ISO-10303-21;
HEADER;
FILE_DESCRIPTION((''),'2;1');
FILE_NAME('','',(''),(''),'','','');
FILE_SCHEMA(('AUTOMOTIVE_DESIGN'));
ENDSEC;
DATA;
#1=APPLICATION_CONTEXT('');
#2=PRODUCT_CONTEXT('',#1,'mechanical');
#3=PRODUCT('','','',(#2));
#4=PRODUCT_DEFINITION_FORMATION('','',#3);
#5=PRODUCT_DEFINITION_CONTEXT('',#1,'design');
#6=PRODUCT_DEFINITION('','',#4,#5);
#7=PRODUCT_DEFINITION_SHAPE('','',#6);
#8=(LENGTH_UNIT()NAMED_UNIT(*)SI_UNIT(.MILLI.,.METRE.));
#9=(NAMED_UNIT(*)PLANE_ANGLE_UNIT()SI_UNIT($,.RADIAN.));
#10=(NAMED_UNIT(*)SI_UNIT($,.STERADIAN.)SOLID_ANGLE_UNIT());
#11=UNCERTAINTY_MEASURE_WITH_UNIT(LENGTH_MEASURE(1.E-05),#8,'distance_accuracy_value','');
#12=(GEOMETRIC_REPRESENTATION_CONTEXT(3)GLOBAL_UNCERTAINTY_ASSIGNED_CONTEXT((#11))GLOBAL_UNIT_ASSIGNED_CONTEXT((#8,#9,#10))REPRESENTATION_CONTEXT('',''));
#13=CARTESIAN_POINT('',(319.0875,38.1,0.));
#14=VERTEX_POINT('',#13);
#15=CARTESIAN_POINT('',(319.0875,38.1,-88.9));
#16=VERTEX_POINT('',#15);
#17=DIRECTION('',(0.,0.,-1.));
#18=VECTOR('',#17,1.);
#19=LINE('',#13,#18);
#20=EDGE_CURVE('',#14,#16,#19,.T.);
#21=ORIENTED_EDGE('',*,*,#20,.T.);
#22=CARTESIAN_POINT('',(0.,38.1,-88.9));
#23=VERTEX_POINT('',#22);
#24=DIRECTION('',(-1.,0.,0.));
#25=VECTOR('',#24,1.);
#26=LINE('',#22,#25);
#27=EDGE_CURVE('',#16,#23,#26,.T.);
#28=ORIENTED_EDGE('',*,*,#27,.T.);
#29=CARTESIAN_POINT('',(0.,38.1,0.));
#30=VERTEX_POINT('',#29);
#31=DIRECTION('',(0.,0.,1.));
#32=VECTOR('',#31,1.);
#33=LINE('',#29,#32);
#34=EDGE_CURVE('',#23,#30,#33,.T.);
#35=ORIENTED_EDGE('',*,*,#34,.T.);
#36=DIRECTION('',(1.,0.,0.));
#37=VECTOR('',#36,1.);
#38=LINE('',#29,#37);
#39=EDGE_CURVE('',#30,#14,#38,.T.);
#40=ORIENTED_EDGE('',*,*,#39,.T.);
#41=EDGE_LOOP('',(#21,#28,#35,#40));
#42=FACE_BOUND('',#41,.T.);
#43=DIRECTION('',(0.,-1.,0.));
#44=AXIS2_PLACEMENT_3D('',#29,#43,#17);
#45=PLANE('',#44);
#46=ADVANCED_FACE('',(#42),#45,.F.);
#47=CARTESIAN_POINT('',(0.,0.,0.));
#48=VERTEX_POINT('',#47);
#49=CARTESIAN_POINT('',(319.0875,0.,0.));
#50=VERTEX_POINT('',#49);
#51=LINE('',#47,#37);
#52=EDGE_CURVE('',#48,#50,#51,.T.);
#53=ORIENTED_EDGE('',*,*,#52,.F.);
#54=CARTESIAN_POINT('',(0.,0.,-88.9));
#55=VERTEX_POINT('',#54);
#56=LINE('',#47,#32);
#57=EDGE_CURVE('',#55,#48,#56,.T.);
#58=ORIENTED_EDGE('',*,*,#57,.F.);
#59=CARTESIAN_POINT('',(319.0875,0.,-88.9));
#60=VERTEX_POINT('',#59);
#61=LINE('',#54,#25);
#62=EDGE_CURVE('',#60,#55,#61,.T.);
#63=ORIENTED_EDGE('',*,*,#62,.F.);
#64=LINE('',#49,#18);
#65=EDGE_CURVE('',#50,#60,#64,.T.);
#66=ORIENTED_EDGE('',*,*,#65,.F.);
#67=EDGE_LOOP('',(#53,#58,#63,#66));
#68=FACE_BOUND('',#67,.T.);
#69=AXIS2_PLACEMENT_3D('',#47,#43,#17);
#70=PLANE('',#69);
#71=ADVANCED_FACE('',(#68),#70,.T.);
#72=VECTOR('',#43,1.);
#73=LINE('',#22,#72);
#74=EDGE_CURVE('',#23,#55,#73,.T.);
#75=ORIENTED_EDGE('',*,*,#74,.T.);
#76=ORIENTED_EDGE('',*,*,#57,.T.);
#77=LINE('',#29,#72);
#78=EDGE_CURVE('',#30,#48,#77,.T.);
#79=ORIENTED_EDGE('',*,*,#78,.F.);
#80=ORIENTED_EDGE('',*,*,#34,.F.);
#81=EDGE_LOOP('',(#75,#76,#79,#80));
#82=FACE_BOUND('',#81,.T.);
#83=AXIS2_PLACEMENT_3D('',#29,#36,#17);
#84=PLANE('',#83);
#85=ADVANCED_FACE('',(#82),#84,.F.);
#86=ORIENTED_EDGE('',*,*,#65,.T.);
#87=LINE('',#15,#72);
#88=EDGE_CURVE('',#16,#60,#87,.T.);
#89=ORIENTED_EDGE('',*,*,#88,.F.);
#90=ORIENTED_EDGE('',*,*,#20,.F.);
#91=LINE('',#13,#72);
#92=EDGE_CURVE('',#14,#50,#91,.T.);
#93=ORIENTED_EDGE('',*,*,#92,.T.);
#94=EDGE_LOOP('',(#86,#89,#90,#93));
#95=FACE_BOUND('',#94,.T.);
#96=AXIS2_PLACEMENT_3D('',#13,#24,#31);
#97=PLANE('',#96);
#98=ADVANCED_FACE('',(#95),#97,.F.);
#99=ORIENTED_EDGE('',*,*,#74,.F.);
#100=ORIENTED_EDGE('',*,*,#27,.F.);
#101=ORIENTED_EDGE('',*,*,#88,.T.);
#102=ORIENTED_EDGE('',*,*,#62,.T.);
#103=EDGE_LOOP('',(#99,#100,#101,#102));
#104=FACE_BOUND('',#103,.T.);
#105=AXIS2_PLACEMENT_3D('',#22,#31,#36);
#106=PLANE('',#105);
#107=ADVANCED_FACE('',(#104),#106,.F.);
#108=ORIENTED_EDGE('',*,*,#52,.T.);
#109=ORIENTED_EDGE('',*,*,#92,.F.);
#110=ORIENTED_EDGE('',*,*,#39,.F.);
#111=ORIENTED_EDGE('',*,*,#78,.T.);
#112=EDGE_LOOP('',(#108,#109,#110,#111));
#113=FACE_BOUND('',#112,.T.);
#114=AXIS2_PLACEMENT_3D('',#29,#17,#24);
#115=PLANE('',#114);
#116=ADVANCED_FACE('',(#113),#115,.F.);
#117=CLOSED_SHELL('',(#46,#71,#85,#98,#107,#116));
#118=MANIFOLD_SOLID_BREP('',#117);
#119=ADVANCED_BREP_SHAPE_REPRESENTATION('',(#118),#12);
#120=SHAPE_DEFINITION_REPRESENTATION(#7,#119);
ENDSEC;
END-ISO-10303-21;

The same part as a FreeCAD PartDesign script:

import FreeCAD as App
import Part
import Sketcher

V = App.Vector
Q = App.Units.Quantity

doc = App.newDocument("Part")
params = doc.addObject("Spreadsheet::Sheet", "Params")
for row, (alias, value) in enumerate([
    ("sketch1_height", "3.5 in"),
    ("sketch1_width", "12.5625 in"),
    ("pad1_length", "1.5 in"),
], start=1):
    params.set(f"A{row}", alias)
    params.set(f"B{row}", "=" + value)
    params.setAlias(f"B{row}", alias)

body = doc.addObject("PartDesign::Body", "Body")

# Sketch on XZ plane
sketch1 = body.newObject("Sketcher::SketchObject", "Sketch")
sketch1.AttachmentSupport = (doc.getObject("XZ_Plane"), [""])
sketch1.MapMode = "FlatFace"
sketch1.addGeometry([
    Part.LineSegment(V(0, -88.9, 0), V(0, 0, 0)),
    Part.LineSegment(V(0, 0, 0), V(319.0875, 0, 0)),
    Part.LineSegment(V(319.0875, 0, 0), V(319.0875, -88.9, 0)),
    Part.LineSegment(V(319.0875, -88.9, 0), V(0, -88.9, 0)),
], False)
sketch1.addConstraint([
    Sketcher.Constraint("Coincident", 0, 2, 1, 1),
    Sketcher.Constraint("Coincident", 1, 2, 2, 1),
    Sketcher.Constraint("Coincident", 2, 2, 3, 1),
    Sketcher.Constraint("Coincident", 3, 2, 0, 1),
    Sketcher.Constraint("Vertical", 0),
    Sketcher.Constraint("Horizontal", 1),
    Sketcher.Constraint("Vertical", 2),
    Sketcher.Constraint("Horizontal", 3),
    Sketcher.Constraint("Coincident", 0, 2, -1, 1),
    Sketcher.Constraint("DistanceY", 0, 1, 0, 2, Q("3.5 in")),
    Sketcher.Constraint("DistanceX", 1, 1, 1, 2, Q("12.5625 in")),
])
sketch1.setExpression("Constraints[9]", "Params.sketch1_height")
sketch1.setExpression("Constraints[10]", "Params.sketch1_width")
pad1 = body.newObject("PartDesign::Pad", "Pad")
pad1.Profile = sketch1
pad1.setExpression("Length", "Params.pad1_length")
pad1.Reversed = True

doc.recompute()
